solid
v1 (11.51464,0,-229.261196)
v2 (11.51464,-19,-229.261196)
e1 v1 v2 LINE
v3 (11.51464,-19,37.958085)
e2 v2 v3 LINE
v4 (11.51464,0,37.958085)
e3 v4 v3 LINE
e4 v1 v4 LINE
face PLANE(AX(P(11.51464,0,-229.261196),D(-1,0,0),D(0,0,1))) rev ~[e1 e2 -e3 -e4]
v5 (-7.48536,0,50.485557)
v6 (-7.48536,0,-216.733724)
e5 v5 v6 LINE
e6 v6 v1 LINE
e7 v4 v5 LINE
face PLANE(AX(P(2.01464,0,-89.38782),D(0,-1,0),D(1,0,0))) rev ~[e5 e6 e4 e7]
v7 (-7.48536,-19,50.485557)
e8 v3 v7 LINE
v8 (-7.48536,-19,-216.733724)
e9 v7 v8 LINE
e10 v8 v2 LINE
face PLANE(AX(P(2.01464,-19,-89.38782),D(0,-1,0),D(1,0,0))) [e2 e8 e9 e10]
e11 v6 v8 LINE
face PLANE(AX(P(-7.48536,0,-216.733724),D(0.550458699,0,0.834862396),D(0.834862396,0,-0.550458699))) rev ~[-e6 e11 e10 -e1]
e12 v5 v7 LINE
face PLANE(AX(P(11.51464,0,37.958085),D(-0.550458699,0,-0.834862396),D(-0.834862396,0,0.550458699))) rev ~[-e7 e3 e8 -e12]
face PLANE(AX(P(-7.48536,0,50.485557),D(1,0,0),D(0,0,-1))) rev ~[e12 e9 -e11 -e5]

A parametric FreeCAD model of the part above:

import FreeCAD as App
import Part
import Sketcher
from FreeCAD import Vector
Q = App.Units.Quantity


def add_polygon(sketch, points):
    """Adds a closed chain of lines whose ends are joined by coincident constraints."""
    first, n = sketch.GeometryCount, len(points)
    for a, b in zip(points, points[1:] + points[:1]):
        sketch.addGeometry(Part.LineSegment(App.Vector(*a, 0), App.Vector(*b, 0)), False)
    for i in range(n):
        sketch.addConstraint(Sketcher.Constraint("Coincident", first + i, 2, first + (i + 1) % n, 1))

doc = App.newDocument("Part")
params = doc.addObject("Spreadsheet::Sheet", "Params")
for row, (alias, value) in enumerate([
    ("pad1_length", "19 mm"),
], start=1):
    params.set(f"A{row}", alias)
    params.set(f"B{row}", "=" + value)
    params.setAlias(f"B{row}", alias)

body = doc.addObject("PartDesign::Body", "Body")

sketch1 = body.newObject("Sketcher::SketchObject", "Sketch")
sketch1.AttachmentSupport = (doc.getObject("XZ_Plane"), [""])
sketch1.MapMode = "FlatFace"
add_polygon(sketch1, [(12, 38), (-7, 50), (-7, -217), (12, -229)])
sketch1.addConstraint(Sketcher.Constraint("Vertical", 1))
sketch1.addConstraint(Sketcher.Constraint("Vertical", 3))
sketch1.addConstraint(Sketcher.Constraint("Parallel", 0, 2))
sketch1.addConstraint(Sketcher.Constraint("DistanceX", 1, 2, 2, 2, Q("19 mm")))
sketch1.addConstraint(Sketcher.Constraint("DistanceY", 1, 2, 1, 1, Q("267.219281 mm")))
sketch1.addConstraint(Sketcher.Constraint("Distance", 0, Q("22.758241 mm")))
sketch1.addConstraint(Sketcher.Constraint("DistanceX", 0, 2, -1, 1, Q("7.48536 mm")))
sketch1.addConstraint(Sketcher.Constraint("DistanceY", -1, 1, 0, 2, Q("50.485557 mm")))
pad1 = body.newObject("PartDesign::Pad", "Pad")
pad1.Profile = sketch1
pad1.setExpression("Length", "Params.pad1_length")
body2 = doc.addObject("PartDesign::Body", "Body001")
doc.recompute()

body2.BaseFeature = body
doc.recompute()
body.Visibility = False

doc.recompute()
